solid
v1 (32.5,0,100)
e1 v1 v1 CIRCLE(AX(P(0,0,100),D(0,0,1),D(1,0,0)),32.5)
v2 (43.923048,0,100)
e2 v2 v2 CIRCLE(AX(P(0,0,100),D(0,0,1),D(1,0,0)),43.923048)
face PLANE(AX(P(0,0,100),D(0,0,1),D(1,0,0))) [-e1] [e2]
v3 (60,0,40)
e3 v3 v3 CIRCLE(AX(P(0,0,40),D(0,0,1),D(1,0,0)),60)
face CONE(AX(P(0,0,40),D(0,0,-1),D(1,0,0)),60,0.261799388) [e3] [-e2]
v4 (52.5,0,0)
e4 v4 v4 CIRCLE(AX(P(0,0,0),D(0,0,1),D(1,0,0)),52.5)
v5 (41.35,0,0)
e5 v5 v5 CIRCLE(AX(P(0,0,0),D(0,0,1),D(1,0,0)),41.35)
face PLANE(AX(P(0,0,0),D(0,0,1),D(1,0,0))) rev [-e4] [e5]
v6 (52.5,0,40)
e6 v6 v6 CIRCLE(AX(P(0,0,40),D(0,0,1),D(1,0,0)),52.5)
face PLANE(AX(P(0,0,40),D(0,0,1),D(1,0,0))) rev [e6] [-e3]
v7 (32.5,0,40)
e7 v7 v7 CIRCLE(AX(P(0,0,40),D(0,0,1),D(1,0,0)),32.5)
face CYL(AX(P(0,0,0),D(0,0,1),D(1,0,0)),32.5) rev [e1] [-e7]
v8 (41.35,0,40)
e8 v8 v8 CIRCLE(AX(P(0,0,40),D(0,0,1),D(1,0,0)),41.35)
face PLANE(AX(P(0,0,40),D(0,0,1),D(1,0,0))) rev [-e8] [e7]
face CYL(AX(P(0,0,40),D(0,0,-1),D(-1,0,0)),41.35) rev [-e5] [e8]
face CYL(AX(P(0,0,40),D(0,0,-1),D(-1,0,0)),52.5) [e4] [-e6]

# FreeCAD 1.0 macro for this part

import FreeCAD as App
import Part
import Sketcher
Q = App.Units.Quantity

doc = App.newDocument("Part")
params = doc.addObject("Spreadsheet::Sheet", "Params")
for row, (alias, value) in enumerate([
    ("sketch1_diameter", "105 mm"),
    ("sketch1_diameter2", "82.7 mm"),
    ("pad1_length", "40 mm"),
    ("sketch2_diameter", "120 mm"),
    ("pad2_length", "60 mm"),
    ("pad2_taper", "-15 deg"),
    ("sketch3_diameter", "65 mm"),
], start=1):
    params.set(f"A{row}", alias)
    params.set(f"B{row}", "=" + value)
    params.setAlias(f"B{row}", alias)

body = doc.addObject("PartDesign::Body", "Body")

# Sketch on XY plane
sketch1 = body.newObject("Sketcher::SketchObject", "Sketch")
sketch1.AttachmentSupport = (doc.getObject("XY_Plane"), [""])
sketch1.MapMode = "FlatFace"
sketch1.addGeometry([
    Part.Circle(App.Vector(0, 0, 0), App.Vector(0, 0, 1), 52.5),
    Part.Circle(App.Vector(0, 0, 0), App.Vector(0, 0, 1), 41.35),
], False)
sketch1.addConstraint([
    Sketcher.Constraint("Coincident", 0, 3, -1, 1),
    Sketcher.Constraint("Coincident", 1, 3, -1, 1),
    Sketcher.Constraint("Diameter", 0, Q("105 mm")),
    Sketcher.Constraint("Diameter", 1, Q("82.7 mm")),
])
sketch1.setExpression("Constraints[2]", "Params.sketch1_diameter")
sketch1.setExpression("Constraints[3]", "Params.sketch1_diameter2")
pad1 = body.newObject("PartDesign::Pad", "Pad")
pad1.Profile = sketch1
pad1.setExpression("Length", "Params.pad1_length")

# Sketch on XY plane
sketch2 = body.newObject("Sketcher::SketchObject", "Sketch001")
sketch2.AttachmentSupport = (doc.getObject("XY_Plane"), [""])
sketch2.MapMode = "FlatFace"
sketch2.AttachmentOffset = App.Placement(App.Vector(0, 0, 40), App.Rotation())
sketch2.addGeometry(Part.Circle(App.Vector(0, 0, 0), App.Vector(0, 0, 1), 60), False)
sketch2.addConstraint([
    Sketcher.Constraint("Coincident", 0, 3, -1, 1),
    Sketcher.Constraint("Diameter", 0, Q("120 mm")),
])
sketch2.setExpression("Constraints[1]", "Params.sketch2_diameter")
pad2 = body.newObject("PartDesign::Pad", "Pad001")
pad2.Profile = sketch2
pad2.setExpression("Length", "Params.pad2_length")
pad2.setExpression("TaperAngle", "Params.pad2_taper")

# Sketch on XY plane
sketch3 = body.newObject("Sketcher::SketchObject", "Sketch002")
sketch3.AttachmentSupport = (doc.getObject("XY_Plane"), [""])
sketch3.MapMode = "FlatFace"
sketch3.AttachmentOffset = App.Placement(App.Vector(0, 0, 100), App.Rotation())
sketch3.addGeometry(Part.Circle(App.Vector(0, 0, 0), App.Vector(0, 0, 1), 32.5), False)
sketch3.addConstraint([
    Sketcher.Constraint("Coincident", 0, 3, -1, 1),
    Sketcher.Constraint("Diameter", 0, Q("65 mm")),
])
sketch3.setExpression("Constraints[1]", "Params.sketch3_diameter")
pocket1 = body.newObject("PartDesign::Pocket", "Pocket")
pocket1.Profile = sketch3
pocket1.Type = "ThroughAll"

doc.recompute()
